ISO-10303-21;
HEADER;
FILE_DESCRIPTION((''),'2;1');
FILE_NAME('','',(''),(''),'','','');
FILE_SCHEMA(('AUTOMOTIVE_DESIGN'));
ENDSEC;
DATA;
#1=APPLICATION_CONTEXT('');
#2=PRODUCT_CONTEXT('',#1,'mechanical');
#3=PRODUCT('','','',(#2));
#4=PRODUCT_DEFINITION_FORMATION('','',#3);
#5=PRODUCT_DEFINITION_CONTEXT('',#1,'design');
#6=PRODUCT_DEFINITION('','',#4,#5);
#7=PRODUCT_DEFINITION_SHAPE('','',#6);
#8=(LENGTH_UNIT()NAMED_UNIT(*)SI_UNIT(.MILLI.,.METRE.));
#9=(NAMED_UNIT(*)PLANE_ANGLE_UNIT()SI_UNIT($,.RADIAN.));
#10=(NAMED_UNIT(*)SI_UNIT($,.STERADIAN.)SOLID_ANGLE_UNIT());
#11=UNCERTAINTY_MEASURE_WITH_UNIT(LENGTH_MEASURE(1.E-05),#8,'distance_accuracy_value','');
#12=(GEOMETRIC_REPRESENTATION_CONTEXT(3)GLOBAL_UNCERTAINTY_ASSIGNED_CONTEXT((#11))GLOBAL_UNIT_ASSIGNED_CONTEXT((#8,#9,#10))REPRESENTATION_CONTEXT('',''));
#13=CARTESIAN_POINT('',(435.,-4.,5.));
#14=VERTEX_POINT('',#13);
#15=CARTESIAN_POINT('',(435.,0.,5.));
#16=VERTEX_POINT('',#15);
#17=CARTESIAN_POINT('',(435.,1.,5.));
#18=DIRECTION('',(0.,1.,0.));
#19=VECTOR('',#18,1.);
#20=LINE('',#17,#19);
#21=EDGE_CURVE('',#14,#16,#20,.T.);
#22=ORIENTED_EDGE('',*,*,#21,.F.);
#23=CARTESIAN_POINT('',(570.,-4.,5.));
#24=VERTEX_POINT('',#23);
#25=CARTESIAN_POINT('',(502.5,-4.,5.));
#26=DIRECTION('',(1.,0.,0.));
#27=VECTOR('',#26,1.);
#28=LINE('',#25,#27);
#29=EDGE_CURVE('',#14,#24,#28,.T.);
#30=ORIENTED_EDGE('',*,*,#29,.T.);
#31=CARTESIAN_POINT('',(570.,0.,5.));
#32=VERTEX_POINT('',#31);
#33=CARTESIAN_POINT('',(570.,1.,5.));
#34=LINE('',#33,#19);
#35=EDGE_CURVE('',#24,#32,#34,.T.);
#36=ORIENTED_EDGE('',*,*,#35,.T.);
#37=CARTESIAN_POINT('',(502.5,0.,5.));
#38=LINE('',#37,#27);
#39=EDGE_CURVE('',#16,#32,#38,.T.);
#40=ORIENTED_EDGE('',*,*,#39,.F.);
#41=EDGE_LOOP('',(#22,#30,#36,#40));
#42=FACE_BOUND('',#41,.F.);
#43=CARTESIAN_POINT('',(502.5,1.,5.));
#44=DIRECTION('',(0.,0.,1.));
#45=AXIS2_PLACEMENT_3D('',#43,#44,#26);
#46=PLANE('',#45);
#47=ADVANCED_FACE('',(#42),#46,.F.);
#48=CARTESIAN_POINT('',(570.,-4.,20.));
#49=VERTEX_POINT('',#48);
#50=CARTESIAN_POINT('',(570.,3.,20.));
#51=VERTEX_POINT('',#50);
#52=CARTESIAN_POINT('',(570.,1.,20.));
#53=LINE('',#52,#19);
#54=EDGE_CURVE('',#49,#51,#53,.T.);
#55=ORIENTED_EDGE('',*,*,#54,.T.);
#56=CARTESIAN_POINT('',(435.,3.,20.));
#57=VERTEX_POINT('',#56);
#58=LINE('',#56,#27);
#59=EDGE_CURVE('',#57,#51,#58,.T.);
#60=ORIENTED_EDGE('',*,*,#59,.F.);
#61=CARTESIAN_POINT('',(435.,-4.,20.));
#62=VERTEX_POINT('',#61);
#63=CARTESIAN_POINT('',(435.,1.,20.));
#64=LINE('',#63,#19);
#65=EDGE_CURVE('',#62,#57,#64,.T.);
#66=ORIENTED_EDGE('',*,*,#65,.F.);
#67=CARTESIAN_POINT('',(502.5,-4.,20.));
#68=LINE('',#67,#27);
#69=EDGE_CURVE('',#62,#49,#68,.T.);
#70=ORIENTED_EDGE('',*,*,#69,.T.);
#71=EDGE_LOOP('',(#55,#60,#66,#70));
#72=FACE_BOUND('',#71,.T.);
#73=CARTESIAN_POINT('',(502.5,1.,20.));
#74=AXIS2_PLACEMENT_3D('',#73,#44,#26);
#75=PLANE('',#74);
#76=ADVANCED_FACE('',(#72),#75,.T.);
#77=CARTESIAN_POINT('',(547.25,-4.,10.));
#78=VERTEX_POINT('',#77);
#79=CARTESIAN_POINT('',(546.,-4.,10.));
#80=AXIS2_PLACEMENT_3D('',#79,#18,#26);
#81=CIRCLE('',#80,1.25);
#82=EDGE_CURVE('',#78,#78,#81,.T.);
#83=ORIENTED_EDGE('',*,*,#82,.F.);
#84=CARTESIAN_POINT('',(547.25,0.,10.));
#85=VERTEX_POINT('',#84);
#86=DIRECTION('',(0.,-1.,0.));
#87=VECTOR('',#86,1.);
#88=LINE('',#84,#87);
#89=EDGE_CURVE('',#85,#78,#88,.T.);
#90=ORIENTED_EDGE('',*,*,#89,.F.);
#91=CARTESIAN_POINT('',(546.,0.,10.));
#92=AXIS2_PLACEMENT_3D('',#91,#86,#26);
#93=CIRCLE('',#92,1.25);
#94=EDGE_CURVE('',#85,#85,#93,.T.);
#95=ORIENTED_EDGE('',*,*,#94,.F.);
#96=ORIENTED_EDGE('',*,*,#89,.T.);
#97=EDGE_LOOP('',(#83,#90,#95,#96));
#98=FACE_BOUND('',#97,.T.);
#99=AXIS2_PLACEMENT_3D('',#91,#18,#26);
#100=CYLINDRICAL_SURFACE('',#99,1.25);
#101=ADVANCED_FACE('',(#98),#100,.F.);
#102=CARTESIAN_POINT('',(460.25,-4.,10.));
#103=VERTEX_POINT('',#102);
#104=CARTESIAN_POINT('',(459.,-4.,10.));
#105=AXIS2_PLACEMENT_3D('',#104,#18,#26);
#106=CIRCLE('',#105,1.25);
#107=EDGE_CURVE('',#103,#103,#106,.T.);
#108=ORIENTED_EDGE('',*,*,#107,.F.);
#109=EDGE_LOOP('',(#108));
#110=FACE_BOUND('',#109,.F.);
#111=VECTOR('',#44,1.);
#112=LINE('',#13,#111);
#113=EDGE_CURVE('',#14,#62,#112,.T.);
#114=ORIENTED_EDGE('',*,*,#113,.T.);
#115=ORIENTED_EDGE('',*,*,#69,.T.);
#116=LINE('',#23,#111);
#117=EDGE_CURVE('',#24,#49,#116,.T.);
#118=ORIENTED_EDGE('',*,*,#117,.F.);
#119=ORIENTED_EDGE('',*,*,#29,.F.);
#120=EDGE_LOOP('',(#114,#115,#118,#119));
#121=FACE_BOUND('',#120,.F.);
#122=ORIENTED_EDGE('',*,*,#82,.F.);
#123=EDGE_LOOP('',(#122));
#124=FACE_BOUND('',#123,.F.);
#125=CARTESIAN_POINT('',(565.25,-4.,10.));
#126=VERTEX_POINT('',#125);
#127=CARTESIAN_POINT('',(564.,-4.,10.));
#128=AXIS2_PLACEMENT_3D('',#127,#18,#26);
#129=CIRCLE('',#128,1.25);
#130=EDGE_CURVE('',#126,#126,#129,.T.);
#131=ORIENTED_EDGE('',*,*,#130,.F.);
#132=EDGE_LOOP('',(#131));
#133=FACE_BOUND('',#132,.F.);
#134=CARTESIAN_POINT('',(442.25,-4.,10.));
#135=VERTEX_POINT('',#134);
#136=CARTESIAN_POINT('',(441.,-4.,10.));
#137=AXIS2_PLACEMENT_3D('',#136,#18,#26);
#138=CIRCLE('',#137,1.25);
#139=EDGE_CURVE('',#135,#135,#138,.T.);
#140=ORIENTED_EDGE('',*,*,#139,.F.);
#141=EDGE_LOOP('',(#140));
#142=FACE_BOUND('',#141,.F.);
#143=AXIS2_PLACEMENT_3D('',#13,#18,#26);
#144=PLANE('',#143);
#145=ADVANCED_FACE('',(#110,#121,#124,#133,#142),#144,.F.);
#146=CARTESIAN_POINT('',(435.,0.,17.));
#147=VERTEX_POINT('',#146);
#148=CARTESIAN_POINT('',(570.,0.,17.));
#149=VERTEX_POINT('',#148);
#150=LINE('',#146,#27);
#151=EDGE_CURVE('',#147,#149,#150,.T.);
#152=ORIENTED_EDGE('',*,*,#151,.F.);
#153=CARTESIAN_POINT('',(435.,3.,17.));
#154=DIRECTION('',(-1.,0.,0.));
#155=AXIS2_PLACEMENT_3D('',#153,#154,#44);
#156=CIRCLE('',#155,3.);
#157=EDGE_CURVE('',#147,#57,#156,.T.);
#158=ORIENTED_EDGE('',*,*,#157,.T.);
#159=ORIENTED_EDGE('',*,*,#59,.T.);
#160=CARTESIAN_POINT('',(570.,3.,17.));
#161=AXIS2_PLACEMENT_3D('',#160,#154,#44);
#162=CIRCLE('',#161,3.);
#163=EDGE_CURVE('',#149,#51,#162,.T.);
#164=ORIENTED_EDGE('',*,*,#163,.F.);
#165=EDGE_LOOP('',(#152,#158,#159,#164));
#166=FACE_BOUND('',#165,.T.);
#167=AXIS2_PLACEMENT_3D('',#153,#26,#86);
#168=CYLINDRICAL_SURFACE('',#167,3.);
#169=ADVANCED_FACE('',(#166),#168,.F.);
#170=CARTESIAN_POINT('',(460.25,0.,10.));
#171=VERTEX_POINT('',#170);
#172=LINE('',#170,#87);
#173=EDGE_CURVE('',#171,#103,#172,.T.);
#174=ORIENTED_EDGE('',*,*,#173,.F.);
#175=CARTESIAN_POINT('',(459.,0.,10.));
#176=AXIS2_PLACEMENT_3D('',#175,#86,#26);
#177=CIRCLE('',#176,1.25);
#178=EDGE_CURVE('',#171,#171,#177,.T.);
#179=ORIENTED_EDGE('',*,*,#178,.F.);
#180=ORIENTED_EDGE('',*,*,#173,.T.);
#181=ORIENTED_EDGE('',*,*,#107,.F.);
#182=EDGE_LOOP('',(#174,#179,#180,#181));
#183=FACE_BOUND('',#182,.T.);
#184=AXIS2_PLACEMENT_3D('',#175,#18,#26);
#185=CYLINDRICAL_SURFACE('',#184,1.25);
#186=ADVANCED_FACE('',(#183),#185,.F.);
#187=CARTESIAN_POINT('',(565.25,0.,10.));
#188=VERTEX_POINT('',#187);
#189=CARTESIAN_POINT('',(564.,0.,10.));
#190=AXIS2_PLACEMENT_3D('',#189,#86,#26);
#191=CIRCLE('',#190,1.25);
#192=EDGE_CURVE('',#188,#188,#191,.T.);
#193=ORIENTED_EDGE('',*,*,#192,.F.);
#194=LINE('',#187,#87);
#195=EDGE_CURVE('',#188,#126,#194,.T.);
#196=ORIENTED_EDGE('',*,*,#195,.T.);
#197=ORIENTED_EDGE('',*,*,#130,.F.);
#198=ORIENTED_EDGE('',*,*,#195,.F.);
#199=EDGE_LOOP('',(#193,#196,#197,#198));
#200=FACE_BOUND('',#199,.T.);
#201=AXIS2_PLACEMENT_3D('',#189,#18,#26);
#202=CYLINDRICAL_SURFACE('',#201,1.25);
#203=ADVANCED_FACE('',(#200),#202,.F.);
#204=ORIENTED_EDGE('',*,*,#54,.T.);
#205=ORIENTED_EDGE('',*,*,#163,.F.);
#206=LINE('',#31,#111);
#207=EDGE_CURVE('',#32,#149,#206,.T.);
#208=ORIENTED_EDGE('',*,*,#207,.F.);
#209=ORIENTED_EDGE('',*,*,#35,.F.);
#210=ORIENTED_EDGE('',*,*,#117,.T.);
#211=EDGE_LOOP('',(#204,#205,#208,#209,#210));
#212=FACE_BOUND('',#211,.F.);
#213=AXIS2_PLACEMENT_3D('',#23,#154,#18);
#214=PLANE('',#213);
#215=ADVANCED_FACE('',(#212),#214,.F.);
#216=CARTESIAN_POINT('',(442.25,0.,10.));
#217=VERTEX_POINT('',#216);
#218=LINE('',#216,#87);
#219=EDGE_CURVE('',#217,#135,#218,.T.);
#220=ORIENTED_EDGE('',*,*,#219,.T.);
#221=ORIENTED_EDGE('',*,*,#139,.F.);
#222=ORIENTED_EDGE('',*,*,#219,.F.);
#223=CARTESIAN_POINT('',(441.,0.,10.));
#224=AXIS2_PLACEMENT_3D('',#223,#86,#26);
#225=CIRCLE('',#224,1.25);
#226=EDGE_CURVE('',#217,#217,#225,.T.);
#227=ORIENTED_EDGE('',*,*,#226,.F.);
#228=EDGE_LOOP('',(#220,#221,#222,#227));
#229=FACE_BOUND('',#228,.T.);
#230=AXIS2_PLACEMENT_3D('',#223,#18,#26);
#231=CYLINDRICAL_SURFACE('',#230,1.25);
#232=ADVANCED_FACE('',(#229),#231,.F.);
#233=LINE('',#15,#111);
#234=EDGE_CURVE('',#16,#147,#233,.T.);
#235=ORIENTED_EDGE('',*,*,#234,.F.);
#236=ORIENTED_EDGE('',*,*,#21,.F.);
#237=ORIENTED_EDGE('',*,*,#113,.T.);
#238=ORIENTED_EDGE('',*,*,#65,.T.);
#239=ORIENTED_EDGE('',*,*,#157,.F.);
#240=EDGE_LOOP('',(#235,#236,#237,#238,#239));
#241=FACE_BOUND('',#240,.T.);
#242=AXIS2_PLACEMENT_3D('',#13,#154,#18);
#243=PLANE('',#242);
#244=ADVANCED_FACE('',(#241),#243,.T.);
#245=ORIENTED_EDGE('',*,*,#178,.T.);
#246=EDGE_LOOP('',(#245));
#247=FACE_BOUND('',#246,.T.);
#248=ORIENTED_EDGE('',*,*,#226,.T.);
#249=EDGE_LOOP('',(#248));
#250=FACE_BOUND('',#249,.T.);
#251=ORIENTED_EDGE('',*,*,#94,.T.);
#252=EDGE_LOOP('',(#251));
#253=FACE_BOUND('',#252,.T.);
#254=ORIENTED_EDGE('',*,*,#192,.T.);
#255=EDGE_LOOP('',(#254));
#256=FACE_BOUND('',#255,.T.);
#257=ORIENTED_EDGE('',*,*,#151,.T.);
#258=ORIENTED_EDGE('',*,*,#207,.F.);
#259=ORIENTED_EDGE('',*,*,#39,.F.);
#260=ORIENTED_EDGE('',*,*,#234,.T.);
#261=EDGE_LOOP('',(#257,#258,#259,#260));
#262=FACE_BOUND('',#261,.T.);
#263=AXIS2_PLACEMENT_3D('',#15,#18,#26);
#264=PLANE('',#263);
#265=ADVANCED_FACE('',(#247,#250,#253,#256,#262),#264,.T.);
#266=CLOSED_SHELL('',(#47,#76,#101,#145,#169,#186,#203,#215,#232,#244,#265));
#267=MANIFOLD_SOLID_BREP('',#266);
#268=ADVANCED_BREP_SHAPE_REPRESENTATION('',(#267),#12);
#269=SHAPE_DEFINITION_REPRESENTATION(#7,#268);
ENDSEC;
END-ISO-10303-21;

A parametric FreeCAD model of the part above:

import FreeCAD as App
import Part
import Sketcher
from FreeCAD import Vector
Q = App.Units.Quantity


def edges_at(feature, points):
    """Names of the edges that pass closest to the given points."""
    edges = feature.Shape.Edges
    near = lambda p: min(range(len(edges)), key=lambda i: edges[i].distToShape(Part.Vertex(*p))[0])
    return sorted({f"Edge{near(p) + 1}" for p in points})


def add_polygon(sketch, points):
    """Adds a closed chain of lines whose ends are joined by coincident constraints."""
    first, n = sketch.GeometryCount, len(points)
    for a, b in zip(points, points[1:] + points[:1]):
        sketch.addGeometry(Part.LineSegment(App.Vector(*a, 0), App.Vector(*b, 0)), False)
    for i in range(n):
        sketch.addConstraint(Sketcher.Constraint("Coincident", first + i, 2, first + (i + 1) % n, 1))

doc = App.newDocument("Part")
params = doc.addObject("Spreadsheet::Sheet", "Params")
for row, (alias, value) in enumerate([
    ("sketch1_diameter", "2.5 mm"),
    ("pad1_length", "10 mm"),
    ("sketch2_diameter", "2.5 mm"),
    ("pad2_length", "10 mm"),
    ("sketch3_diameter", "2.5 mm"),
    ("pad3_length", "10 mm"),
    ("sketch4_diameter", "2.5 mm"),
    ("pad4_length", "10 mm"),
    ("sketch5_width", "135 mm"),
    ("sketch5_height", "10 mm"),
    ("pad5_length", "15 mm"),
    ("fillet_radius", "3 mm"),
    ("sketch6_width", "135 mm"),
    ("sketch6_height", "10 mm"),
    ("pad6_length", "15 mm"),
], start=1):
    params.set(f"A{row}", alias)
    params.set(f"B{row}", "=" + value)
    params.setAlias(f"B{row}", alias)

body = doc.addObject("PartDesign::Body", "Body")

# Sketch on XZ plane
sketch1 = body.newObject("Sketcher::SketchObject", "Sketch")
sketch1.AttachmentSupport = (doc.getObject("XZ_Plane"), [""])
sketch1.MapMode = "FlatFace"
sketch1.addGeometry(Part.Circle(Vector(564, 10, 0), Vector(0, 0, 1), 1.2), False)
sketch1.addConstraint(Sketcher.Constraint("Diameter", 0, Q("2.5 mm")))
sketch1.addConstraint(Sketcher.Constraint("DistanceX", -1, 1, 0, 3, Q("564 mm")))
sketch1.addConstraint(Sketcher.Constraint("DistanceY", -1, 1, 0, 3, Q("10 mm")))
sketch1.setExpression("Constraints[0]", "Params.sketch1_diameter")
pad1 = body.newObject("PartDesign::Pad", "Pad")
pad1.Profile = sketch1
pad1.setExpression("Length", "Params.pad1_length")
body2 = doc.addObject("PartDesign::Body", "Body001")

# Sketch on XZ plane
sketch2 = body2.newObject("Sketcher::SketchObject", "Sketch001")
sketch2.AttachmentSupport = (doc.getObject("XZ_Plane001"), [""])
sketch2.MapMode = "FlatFace"
sketch2.addGeometry(Part.Circle(Vector(546, 10, 0), Vector(0, 0, 1), 1.2), False)
sketch2.addConstraint(Sketcher.Constraint("Diameter", 0, Q("2.5 mm")))
sketch2.addConstraint(Sketcher.Constraint("DistanceX", -1, 1, 0, 3, Q("546 mm")))
sketch2.addConstraint(Sketcher.Constraint("DistanceY", -1, 1, 0, 3, Q("10 mm")))
sketch2.setExpression("Constraints[0]", "Params.sketch2_diameter")
pad2 = body2.newObject("PartDesign::Pad", "Pad001")
pad2.Profile = sketch2
pad2.setExpression("Length", "Params.pad2_length")
body3 = doc.addObject("PartDesign::Body", "Body002")

# Sketch on XZ plane
sketch3 = body3.newObject("Sketcher::SketchObject", "Sketch002")
sketch3.AttachmentSupport = (doc.getObject("XZ_Plane002"), [""])
sketch3.MapMode = "FlatFace"
sketch3.addGeometry(Part.Circle(Vector(459, 10, 0), Vector(0, 0, 1), 1.2), False)
sketch3.addConstraint(Sketcher.Constraint("Diameter", 0, Q("2.5 mm")))
sketch3.addConstraint(Sketcher.Constraint("DistanceX", -1, 1, 0, 3, Q("459 mm")))
sketch3.addConstraint(Sketcher.Constraint("DistanceY", -1, 1, 0, 3, Q("10 mm")))
sketch3.setExpression("Constraints[0]", "Params.sketch3_diameter")
pad3 = body3.newObject("PartDesign::Pad", "Pad002")
pad3.Profile = sketch3
pad3.setExpression("Length", "Params.pad3_length")
body4 = doc.addObject("PartDesign::Body", "Body003")
body4.AllowCompound = True

# Sketch on XZ plane
sketch4 = body4.newObject("Sketcher::SketchObject", "Sketch003")
sketch4.AttachmentSupport = (doc.getObject("XZ_Plane003"), [""])
sketch4.MapMode = "FlatFace"
sketch4.addGeometry(Part.Circle(Vector(441, 10, 0), Vector(0, 0, 1), 1.2), False)
sketch4.addConstraint(Sketcher.Constraint("Diameter", 0, Q("2.5 mm")))
sketch4.addConstraint(Sketcher.Constraint("DistanceX", -1, 1, 0, 3, Q("441 mm")))
sketch4.addConstraint(Sketcher.Constraint("DistanceY", -1, 1, 0, 3, Q("10 mm")))
sketch4.setExpression("Constraints[0]", "Params.sketch4_diameter")
pad4 = body4.newObject("PartDesign::Pad", "Pad003")
pad4.Profile = sketch4
pad4.setExpression("Length", "Params.pad4_length")
doc.recompute()

boolean = body4.newObject("PartDesign::Boolean", "Boolean")
boolean.Type = "Fuse"
boolean.addObjects([body])
doc.recompute()

boolean2 = body4.newObject("PartDesign::Boolean", "Boolean001")
boolean2.Type = "Fuse"
boolean2.addObjects([body2])
doc.recompute()

boolean3 = body4.newObject("PartDesign::Boolean", "Boolean002")
boolean3.Type = "Fuse"
boolean3.addObjects([body3])
body5 = doc.addObject("PartDesign::Body", "Body004")

# Sketch on XY plane
sketch5 = body5.newObject("Sketcher::SketchObject", "Sketch004")
sketch5.AttachmentSupport = (doc.getObject("XY_Plane004"), [""])
sketch5.MapMode = "FlatFace"
sketch5.AttachmentOffset = App.Placement(Vector(0, 0, 5), App.Rotation())
add_polygon(sketch5, [(435, 10), (435, 0), (570, 0), (570, 10)])  # lines 0-3
sketch5.addConstraint(Sketcher.Constraint("Vertical", 0))
sketch5.addConstraint(Sketcher.Constraint("Horizontal", 1))
sketch5.addConstraint(Sketcher.Constraint("Vertical", 2))
sketch5.addConstraint(Sketcher.Constraint("Horizontal", 3))
sketch5.addConstraint(Sketcher.Constraint("PointOnObject", 0, 2, -1))
sketch5.addConstraint(Sketcher.Constraint("DistanceX", 1, 1, 1, 2, Q("135 mm")))
sketch5.addConstraint(Sketcher.Constraint("DistanceY", 0, 2, 0, 1, Q("10 mm")))
sketch5.addConstraint(Sketcher.Constraint("DistanceX", -1, 1, 0, 2, Q("435 mm")))
sketch5.setExpression("Constraints[9]", "Params.sketch5_width")
sketch5.setExpression("Constraints[10]", "Params.sketch5_height")
pad5 = body5.newObject("PartDesign::Pad", "Pad004")
pad5.Profile = sketch5
pad5.setExpression("Length", "Params.pad5_length")
doc.recompute()

fillet = body5.newObject("PartDesign::Fillet", "Fillet")
fillet.Base = (pad5, edges_at(pad5, [(502.5, 0, 20)]))
fillet.setExpression("Radius", "Params.fillet_radius")
body6 = doc.addObject("PartDesign::Body", "Body005")

# Sketch on XY plane
sketch6 = body6.newObject("Sketcher::SketchObject", "Sketch005")
sketch6.AttachmentSupport = (doc.getObject("XY_Plane005"), [""])
sketch6.MapMode = "FlatFace"
sketch6.AttachmentOffset = App.Placement(Vector(0, 0, 5), App.Rotation())
add_polygon(sketch6, [(435, 6), (435, -4), (570, -4), (570, 6)])  # lines 0-3
sketch6.addConstraint(Sketcher.Constraint("Vertical", 0))
sketch6.addConstraint(Sketcher.Constraint("Horizontal", 1))
sketch6.addConstraint(Sketcher.Constraint("Vertical", 2))
sketch6.addConstraint(Sketcher.Constraint("Horizontal", 3))
sketch6.addConstraint(Sketcher.Constraint("DistanceX", 1, 1, 1, 2, Q("135 mm")))
sketch6.addConstraint(Sketcher.Constraint("DistanceY", 0, 2, 0, 1, Q("10 mm")))
sketch6.addConstraint(Sketcher.Constraint("DistanceX", -1, 1, 0, 2, Q("435 mm")))
sketch6.addConstraint(Sketcher.Constraint("DistanceY", 0, 2, -1, 1, Q("4 mm")))
sketch6.setExpression("Constraints[8]", "Params.sketch6_width")
sketch6.setExpression("Constraints[9]", "Params.sketch6_height")
pad6 = body6.newObject("PartDesign::Pad", "Pad005")
pad6.Profile = sketch6
pad6.setExpression("Length", "Params.pad6_length")
doc.recompute()

boolean4 = body6.newObject("PartDesign::Boolean", "Boolean003")
boolean4.Type = "Cut"
boolean4.addObjects([body5])
doc.recompute()

boolean5 = body6.newObject("PartDesign::Boolean", "Boolean004")
boolean5.Type = "Cut"
boolean5.addObjects([body4])

doc.recompute()
